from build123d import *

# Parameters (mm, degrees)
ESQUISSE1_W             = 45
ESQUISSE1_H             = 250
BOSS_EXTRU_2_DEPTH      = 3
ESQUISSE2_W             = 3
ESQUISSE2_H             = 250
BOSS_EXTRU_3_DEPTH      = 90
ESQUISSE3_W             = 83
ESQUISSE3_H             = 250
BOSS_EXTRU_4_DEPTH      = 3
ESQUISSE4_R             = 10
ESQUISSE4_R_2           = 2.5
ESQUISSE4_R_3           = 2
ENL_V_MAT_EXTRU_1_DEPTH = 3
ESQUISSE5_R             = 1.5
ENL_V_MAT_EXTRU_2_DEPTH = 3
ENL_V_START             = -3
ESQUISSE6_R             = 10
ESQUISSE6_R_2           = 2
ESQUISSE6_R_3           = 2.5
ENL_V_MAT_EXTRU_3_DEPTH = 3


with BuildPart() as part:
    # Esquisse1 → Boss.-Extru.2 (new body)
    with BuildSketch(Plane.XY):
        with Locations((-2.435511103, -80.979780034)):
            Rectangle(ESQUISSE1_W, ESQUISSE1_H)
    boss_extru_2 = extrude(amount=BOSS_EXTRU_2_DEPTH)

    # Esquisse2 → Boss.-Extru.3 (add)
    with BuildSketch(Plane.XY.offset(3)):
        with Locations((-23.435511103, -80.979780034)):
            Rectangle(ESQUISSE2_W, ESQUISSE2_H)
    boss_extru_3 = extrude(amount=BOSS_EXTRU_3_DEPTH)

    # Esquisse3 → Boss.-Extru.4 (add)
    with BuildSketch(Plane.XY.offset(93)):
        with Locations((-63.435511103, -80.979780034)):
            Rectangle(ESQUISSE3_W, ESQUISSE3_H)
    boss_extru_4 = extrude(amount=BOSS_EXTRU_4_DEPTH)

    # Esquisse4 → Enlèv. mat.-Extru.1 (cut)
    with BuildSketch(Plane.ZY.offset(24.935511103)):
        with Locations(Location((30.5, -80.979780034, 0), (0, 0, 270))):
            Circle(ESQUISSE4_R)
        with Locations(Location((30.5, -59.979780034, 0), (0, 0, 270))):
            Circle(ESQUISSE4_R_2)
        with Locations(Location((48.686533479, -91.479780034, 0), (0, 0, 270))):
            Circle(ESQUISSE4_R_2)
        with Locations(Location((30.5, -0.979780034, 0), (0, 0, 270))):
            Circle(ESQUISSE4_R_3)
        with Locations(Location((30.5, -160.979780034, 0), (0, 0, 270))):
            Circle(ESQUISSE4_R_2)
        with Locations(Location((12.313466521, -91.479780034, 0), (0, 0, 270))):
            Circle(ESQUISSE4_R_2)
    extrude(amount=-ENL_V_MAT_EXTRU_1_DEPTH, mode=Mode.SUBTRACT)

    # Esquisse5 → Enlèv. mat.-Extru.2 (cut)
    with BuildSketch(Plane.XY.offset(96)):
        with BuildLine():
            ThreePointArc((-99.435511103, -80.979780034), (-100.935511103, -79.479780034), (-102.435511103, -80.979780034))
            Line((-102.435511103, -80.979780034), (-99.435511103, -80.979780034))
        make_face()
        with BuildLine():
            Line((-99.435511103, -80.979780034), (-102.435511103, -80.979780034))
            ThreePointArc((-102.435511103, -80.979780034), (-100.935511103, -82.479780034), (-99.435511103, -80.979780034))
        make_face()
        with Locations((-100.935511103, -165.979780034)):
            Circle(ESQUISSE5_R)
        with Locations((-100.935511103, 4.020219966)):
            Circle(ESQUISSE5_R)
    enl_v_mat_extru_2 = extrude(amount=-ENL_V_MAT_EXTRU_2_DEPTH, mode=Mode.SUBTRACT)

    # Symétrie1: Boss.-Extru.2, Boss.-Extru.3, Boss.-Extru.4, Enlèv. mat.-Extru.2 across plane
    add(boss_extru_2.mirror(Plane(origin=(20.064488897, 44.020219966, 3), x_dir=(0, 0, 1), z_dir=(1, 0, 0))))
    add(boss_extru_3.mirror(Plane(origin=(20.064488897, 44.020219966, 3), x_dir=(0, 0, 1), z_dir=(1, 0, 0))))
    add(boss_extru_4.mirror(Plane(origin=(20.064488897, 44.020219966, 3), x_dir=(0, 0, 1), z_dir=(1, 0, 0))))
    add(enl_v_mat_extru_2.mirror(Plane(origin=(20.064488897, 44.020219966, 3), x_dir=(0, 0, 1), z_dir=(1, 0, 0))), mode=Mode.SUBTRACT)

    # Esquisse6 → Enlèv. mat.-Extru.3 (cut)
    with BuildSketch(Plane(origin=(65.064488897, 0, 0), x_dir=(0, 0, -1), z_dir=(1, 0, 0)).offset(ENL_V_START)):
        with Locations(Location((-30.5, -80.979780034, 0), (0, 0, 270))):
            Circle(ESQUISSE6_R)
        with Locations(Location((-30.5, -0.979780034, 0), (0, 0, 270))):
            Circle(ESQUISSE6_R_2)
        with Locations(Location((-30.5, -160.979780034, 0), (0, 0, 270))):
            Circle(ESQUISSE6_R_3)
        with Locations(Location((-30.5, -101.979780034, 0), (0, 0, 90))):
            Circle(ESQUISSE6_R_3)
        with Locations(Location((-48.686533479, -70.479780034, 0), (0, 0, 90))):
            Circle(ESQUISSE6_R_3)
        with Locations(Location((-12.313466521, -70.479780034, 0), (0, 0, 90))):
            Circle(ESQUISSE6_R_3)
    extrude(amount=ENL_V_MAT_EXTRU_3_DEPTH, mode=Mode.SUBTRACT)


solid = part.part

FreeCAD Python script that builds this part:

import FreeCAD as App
import Part
import Sketcher

doc = App.newDocument("Part")
params = doc.addObject("Spreadsheet::Sheet", "Params")
for row, (alias, value) in enumerate([
    ("sketch1_width", "45 mm"),
    ("sketch1_height", "250 mm"),
    ("pad1_length", "3 mm"),
    ("sketch2_width", "3 mm"),
    ("sketch2_height", "250 mm"),
    ("pad2_length", "90 mm"),
    ("sketch3_width", "83 mm"),
    ("sketch3_height", "250 mm"),
    ("pad3_length", "3 mm"),
    ("sketch4_diameter", "20 mm"),
    ("sketch4_diameter2", "5 mm"),
    ("sketch4_diameter3", "4 mm"),
    ("pocket1_length", "3 mm"),
    ("sketch5_diameter", "3 mm"),
    ("pocket2_length", "3 mm"),
    ("sketch6_diameter", "20 mm"),
    ("sketch6_diameter2", "4 mm"),
    ("sketch6_diameter3", "5 mm"),
    ("pocket3_length", "3 mm"),
], start=1):
    params.set(f"A{row}", alias)
    params.set(f"B{row}", "=" + value)
    params.setAlias(f"B{row}", alias)

body = doc.addObject("PartDesign::Body", "Body")

sketch1 = body.newObject("Sketcher::SketchObject", "Sketch")
sketch1.AttachmentSupport = (doc.getObject("XY_Plane"), [""])
sketch1.MapMode = "FlatFace"
sketch1.addGeometry([
    Part.LineSegment(App.Vector(-25, 44, 0), App.Vector(-25, -206, 0)),
    Part.LineSegment(App.Vector(-25, -206, 0), App.Vector(20, -206, 0)),
    Part.LineSegment(App.Vector(20, -206, 0), App.Vector(20, 44, 0)),
    Part.LineSegment(App.Vector(20, 44, 0), App.Vector(-25, 44, 0)),
], False)
sketch1.addConstraint([
    Sketcher.Constraint("Coincident", 0, 2, 1, 1),
    Sketcher.Constraint("Coincident", 1, 2, 2, 1),
    Sketcher.Constraint("Coincident", 2, 2, 3, 1),
    Sketcher.Constraint("Coincident", 3, 2, 0, 1),
    Sketcher.Constraint("Vertical", 0),
    Sketcher.Constraint("Horizontal", 1),
    Sketcher.Constraint("Vertical", 2),
    Sketcher.Constraint("Horizontal", 3),
    Sketcher.Constraint("DistanceX", 1, 1, 1, 2, 45.0),
    Sketcher.Constraint("DistanceY", 0, 2, 0, 1, 250.0),
    Sketcher.Constraint("DistanceX", 0, 2, -1, 1, 24.935511),
    Sketcher.Constraint("DistanceY", 0, 2, -1, 1, 205.97978),
])
sketch1.setExpression("Constraints[8]", "Params.sketch1_width")
sketch1.setExpression("Constraints[9]", "Params.sketch1_height")
pad1 = body.newObject("PartDesign::Pad", "Pad")
pad1.Profile = sketch1
pad1.setExpression("Length", "Params.pad1_length")

sketch2 = body.newObject("Sketcher::SketchObject", "Sketch001")
sketch2.AttachmentSupport = (doc.getObject("XY_Plane"), [""])
sketch2.MapMode = "FlatFace"
sketch2.AttachmentOffset = App.Placement(App.Vector(0, 0, 3), App.Rotation())
sketch2.addGeometry([
    Part.LineSegment(App.Vector(-24.9, 44, 0), App.Vector(-24.9, -206, 0)),
    Part.LineSegment(App.Vector(-24.9, -206, 0), App.Vector(-21.9, -206, 0)),
    Part.LineSegment(App.Vector(-21.9, -206, 0), App.Vector(-21.9, 44, 0)),
    Part.LineSegment(App.Vector(-21.9, 44, 0), App.Vector(-24.9, 44, 0)),
], False)
sketch2.addConstraint([
    Sketcher.Constraint("Coincident", 0, 2, 1, 1),
    Sketcher.Constraint("Coincident", 1, 2, 2, 1),
    Sketcher.Constraint("Coincident", 2, 2, 3, 1),
    Sketcher.Constraint("Coincident", 3, 2, 0, 1),
    Sketcher.Constraint("Vertical", 0),
    Sketcher.Constraint("Horizontal", 1),
    Sketcher.Constraint("Vertical", 2),
    Sketcher.Constraint("Horizontal", 3),
    Sketcher.Constraint("DistanceX", 1, 1, 1, 2, 3.0),
    Sketcher.Constraint("DistanceY", 0, 2, 0, 1, 250.0),
    Sketcher.Constraint("DistanceX", 0, 2, -1, 1, 24.935511),
    Sketcher.Constraint("DistanceY", 0, 2, -1, 1, 205.97978),
])
sketch2.setExpression("Constraints[8]", "Params.sketch2_width")
sketch2.setExpression("Constraints[9]", "Params.sketch2_height")
pad2 = body.newObject("PartDesign::Pad", "Pad001")
pad2.Profile = sketch2
pad2.setExpression("Length", "Params.pad2_length")

sketch3 = body.newObject("Sketcher::SketchObject", "Sketch002")
sketch3.AttachmentSupport = (doc.getObject("XY_Plane"), [""])
sketch3.MapMode = "FlatFace"
sketch3.AttachmentOffset = App.Placement(App.Vector(0, 0, 93), App.Rotation())
sketch3.addGeometry([
    Part.LineSegment(App.Vector(-105, 44, 0), App.Vector(-105, -206, 0)),
    Part.LineSegment(App.Vector(-105, -206, 0), App.Vector(-22, -206, 0)),
    Part.LineSegment(App.Vector(-22, -206, 0), App.Vector(-22, 44, 0)),
    Part.LineSegment(App.Vector(-22, 44, 0), App.Vector(-105, 44, 0)),
], False)
sketch3.addConstraint([
    Sketcher.Constraint("Coincident", 0, 2, 1, 1),
    Sketcher.Constraint("Coincident", 1, 2, 2, 1),
    Sketcher.Constraint("Coincident", 2, 2, 3, 1),
    Sketcher.Constraint("Coincident", 3, 2, 0, 1),
    Sketcher.Constraint("Vertical", 0),
    Sketcher.Constraint("Horizontal", 1),
    Sketcher.Constraint("Vertical", 2),
    Sketcher.Constraint("Horizontal", 3),
    Sketcher.Constraint("DistanceX", 1, 1, 1, 2, 83.0),
    Sketcher.Constraint("DistanceY", 0, 2, 0, 1, 250.0),
    Sketcher.Constraint("DistanceX", 0, 2, -1, 1, 104.935511),
    Sketcher.Constraint("DistanceY", 0, 2, -1, 1, 205.97978),
])
sketch3.setExpression("Constraints[8]", "Params.sketch3_width")
sketch3.setExpression("Constraints[9]", "Params.sketch3_height")
pad3 = body.newObject("PartDesign::Pad", "Pad002")
pad3.Profile = sketch3
pad3.setExpression("Length", "Params.pad3_length")

sketch4 = body.newObject("Sketcher::SketchObject", "Sketch003")
sketch4.AttachmentSupport = (doc.getObject("YZ_Plane"), [""])
sketch4.MapMode = "FlatFace"
sketch4.AttachmentOffset = App.Placement(App.Vector(0, 0, -24.935511), App.Rotation())
sketch4.addGeometry([
    Part.Circle(App.Vector(-81, 30.5, 0), App.Vector(0, 0, 1), 10),
    Part.Circle(App.Vector(-60, 30.5, 0), App.Vector(0, 0, 1), 2.5),
    Part.Circle(App.Vector(-91.5, 48.7, 0), App.Vector(0, 0, 1), 2.5),
    Part.Circle(App.Vector(-1, 30.5, 0), App.Vector(0, 0, 1), 2),
    Part.Circle(App.Vector(-161, 30.5, 0), App.Vector(0, 0, 1), 2.5),
    Part.Circle(App.Vector(-91.5, 12.3, 0), App.Vector(0, 0, 1), 2.5),
], False)
sketch4.addConstraint([
    Sketcher.Constraint("Equal", 1, 2),
    Sketcher.Constraint("Equal", 2, 4),
    Sketcher.Constraint("Equal", 4, 5),
    Sketcher.Constraint("Horizontal", 0, 3, 1, 3),
    Sketcher.Constraint("Horizontal", 1, 3, 3, 3),
    Sketcher.Constraint("Horizontal", 3, 3, 4, 3),
    Sketcher.Constraint("Vertical", 2, 3, 5, 3),
    Sketcher.Constraint("Diameter", 0, 20.0),
    Sketcher.Constraint("Diameter", 1, 5.0),
    Sketcher.Constraint("Diameter", 3, 4.0),
    Sketcher.Constraint("DistanceX", 0, 3, 1, 3, 21.0),
    Sketcher.Constraint("DistanceX", 1, 3, 3, 3, 59.0),
    Sketcher.Constraint("DistanceX", 4, 3, 0, 3, 80.0),
    Sketcher.Constraint("DistanceY", -1, 1, 0, 3, 30.5),
    Sketcher.Constraint("DistanceX", 2, 3, 0, 3, 10.5),
    Sketcher.Constraint("DistanceX", 0, 3, -1, 1, 80.97978),
    Sketcher.Constraint("DistanceY", -1, 1, 2, 3, 48.686533),
    Sketcher.Constraint("DistanceY", -1, 1, 5, 3, 12.313467),
])
sketch4.setExpression("Constraints[7]", "Params.sketch4_diameter")
sketch4.setExpression("Constraints[8]", "Params.sketch4_diameter2")
sketch4.setExpression("Constraints[9]", "Params.sketch4_diameter3")
pocket1 = body.newObject("PartDesign::Pocket", "Pocket")
pocket1.Profile = sketch4
pocket1.setExpression("Length", "Params.pocket1_length")
pocket1.Reversed = True

sketch5 = body.newObject("Sketcher::SketchObject", "Sketch004")
sketch5.AttachmentSupport = (doc.getObject("XY_Plane"), [""])
sketch5.MapMode = "FlatFace"
sketch5.AttachmentOffset = App.Placement(App.Vector(0, 0, 96), App.Rotation())
sketch5.addGeometry([
    Part.Circle(App.Vector(-100.9, -81, 0), App.Vector(0, 0, 1), 1.5),
    Part.Circle(App.Vector(-100.9, -166, 0), App.Vector(0, 0, 1), 1.5),
    Part.Circle(App.Vector(-100.9, 4, 0), App.Vector(0, 0, 1), 1.5),
], False)
sketch5.addConstraint([
    Sketcher.Constraint("Equal", 0, 1),
    Sketcher.Constraint("Equal", 1, 2),
    Sketcher.Constraint("Vertical", 0, 3, 1, 3),
    Sketcher.Constraint("Vertical", 1, 3, 2, 3),
    Sketcher.Constraint("Diameter", 0, 3.0),
    Sketcher.Constraint("DistanceY", 1, 3, 0, 3, 85.0),
    Sketcher.Constraint("DistanceY", 0, 3, 2, 3, 85.0),
    Sketcher.Constraint("DistanceX", 0, 3, -1, 1, 100.935511),
    Sketcher.Constraint("DistanceY", 0, 3, -1, 1, 80.97978),
])
sketch5.setExpression("Constraints[4]", "Params.sketch5_diameter")
pocket2 = body.newObject("PartDesign::Pocket", "Pocket001")
pocket2.Profile = sketch5
pocket2.setExpression("Length", "Params.pocket2_length")
doc.recompute()

datumplane = body.newObject("PartDesign::Plane", "DatumPlane")
datumplane.AttachmentSupport = (doc.getObject("YZ_Plane"), [""])
datumplane.MapMode = "FlatFace"
datumplane.AttachmentOffset = App.Placement(App.Vector(0, 0, 20.064489), App.Rotation())
mirrored = body.newObject("PartDesign::Mirrored", "Mirrored")
mirrored.Originals = [pad1, pad2, pad3, pocket2]
mirrored.MirrorPlane = (datumplane, [""])
body.Tip = mirrored

sketch6 = body.newObject("Sketcher::SketchObject", "Sketch005")
sketch6.AttachmentSupport = (doc.getObject("YZ_Plane"), [""])
sketch6.MapMode = "FlatFace"
sketch6.AttachmentOffset = App.Placement(App.Vector(0, 0, 62.064489), App.Rotation())
sketch6.addGeometry([
    Part.Circle(App.Vector(-81, 30.5, 0), App.Vector(0, 0, 1), 10),
    Part.Circle(App.Vector(-1, 30.5, 0), App.Vector(0, 0, 1), 2),
    Part.Circle(App.Vector(-161, 30.5, 0), App.Vector(0, 0, 1), 2.5),
    Part.Circle(App.Vector(-102, 30.5, 0), App.Vector(0, 0, 1), 2.5),
    Part.Circle(App.Vector(-70.5, 48.7, 0), App.Vector(0, 0, 1), 2.5),
    Part.Circle(App.Vector(-70.5, 12.3, 0), App.Vector(0, 0, 1), 2.5),
], False)
sketch6.addConstraint([
    Sketcher.Constraint("Equal", 2, 3),
    Sketcher.Constraint("Equal", 3, 4),
    Sketcher.Constraint("Equal", 4, 5),
    Sketcher.Constraint("Horizontal", 0, 3, 1, 3),
    Sketcher.Constraint("Horizontal", 1, 3, 2, 3),
    Sketcher.Constraint("Horizontal", 2, 3, 3, 3),
    Sketcher.Constraint("Vertical", 4, 3, 5, 3),
    Sketcher.Constraint("Diameter", 0, 20.0),
    Sketcher.Constraint("Diameter", 1, 4.0),
    Sketcher.Constraint("Diameter", 2, 5.0),
    Sketcher.Constraint("DistanceX", 0, 3, 1, 3, 80.0),
    Sketcher.Constraint("DistanceX", 2, 3, 0, 3, 80.0),
    Sketcher.Constraint("DistanceX", 3, 3, 0, 3, 21.0),
    Sketcher.Constraint("DistanceY", -1, 1, 0, 3, 30.5),
    Sketcher.Constraint("DistanceX", 0, 3, 4, 3, 10.5),
    Sketcher.Constraint("DistanceX", 0, 3, -1, 1, 80.97978),
    Sketcher.Constraint("DistanceY", -1, 1, 4, 3, 48.686533),
    Sketcher.Constraint("DistanceY", -1, 1, 5, 3, 12.313467),
])
sketch6.setExpression("Constraints[7]", "Params.sketch6_diameter")
sketch6.setExpression("Constraints[8]", "Params.sketch6_diameter2")
sketch6.setExpression("Constraints[9]", "Params.sketch6_diameter3")
pocket3 = body.newObject("PartDesign::Pocket", "Pocket002")
pocket3.Profile = sketch6
pocket3.setExpression("Length", "Params.pocket3_length")
pocket3.Reversed = True

doc.recompute()
